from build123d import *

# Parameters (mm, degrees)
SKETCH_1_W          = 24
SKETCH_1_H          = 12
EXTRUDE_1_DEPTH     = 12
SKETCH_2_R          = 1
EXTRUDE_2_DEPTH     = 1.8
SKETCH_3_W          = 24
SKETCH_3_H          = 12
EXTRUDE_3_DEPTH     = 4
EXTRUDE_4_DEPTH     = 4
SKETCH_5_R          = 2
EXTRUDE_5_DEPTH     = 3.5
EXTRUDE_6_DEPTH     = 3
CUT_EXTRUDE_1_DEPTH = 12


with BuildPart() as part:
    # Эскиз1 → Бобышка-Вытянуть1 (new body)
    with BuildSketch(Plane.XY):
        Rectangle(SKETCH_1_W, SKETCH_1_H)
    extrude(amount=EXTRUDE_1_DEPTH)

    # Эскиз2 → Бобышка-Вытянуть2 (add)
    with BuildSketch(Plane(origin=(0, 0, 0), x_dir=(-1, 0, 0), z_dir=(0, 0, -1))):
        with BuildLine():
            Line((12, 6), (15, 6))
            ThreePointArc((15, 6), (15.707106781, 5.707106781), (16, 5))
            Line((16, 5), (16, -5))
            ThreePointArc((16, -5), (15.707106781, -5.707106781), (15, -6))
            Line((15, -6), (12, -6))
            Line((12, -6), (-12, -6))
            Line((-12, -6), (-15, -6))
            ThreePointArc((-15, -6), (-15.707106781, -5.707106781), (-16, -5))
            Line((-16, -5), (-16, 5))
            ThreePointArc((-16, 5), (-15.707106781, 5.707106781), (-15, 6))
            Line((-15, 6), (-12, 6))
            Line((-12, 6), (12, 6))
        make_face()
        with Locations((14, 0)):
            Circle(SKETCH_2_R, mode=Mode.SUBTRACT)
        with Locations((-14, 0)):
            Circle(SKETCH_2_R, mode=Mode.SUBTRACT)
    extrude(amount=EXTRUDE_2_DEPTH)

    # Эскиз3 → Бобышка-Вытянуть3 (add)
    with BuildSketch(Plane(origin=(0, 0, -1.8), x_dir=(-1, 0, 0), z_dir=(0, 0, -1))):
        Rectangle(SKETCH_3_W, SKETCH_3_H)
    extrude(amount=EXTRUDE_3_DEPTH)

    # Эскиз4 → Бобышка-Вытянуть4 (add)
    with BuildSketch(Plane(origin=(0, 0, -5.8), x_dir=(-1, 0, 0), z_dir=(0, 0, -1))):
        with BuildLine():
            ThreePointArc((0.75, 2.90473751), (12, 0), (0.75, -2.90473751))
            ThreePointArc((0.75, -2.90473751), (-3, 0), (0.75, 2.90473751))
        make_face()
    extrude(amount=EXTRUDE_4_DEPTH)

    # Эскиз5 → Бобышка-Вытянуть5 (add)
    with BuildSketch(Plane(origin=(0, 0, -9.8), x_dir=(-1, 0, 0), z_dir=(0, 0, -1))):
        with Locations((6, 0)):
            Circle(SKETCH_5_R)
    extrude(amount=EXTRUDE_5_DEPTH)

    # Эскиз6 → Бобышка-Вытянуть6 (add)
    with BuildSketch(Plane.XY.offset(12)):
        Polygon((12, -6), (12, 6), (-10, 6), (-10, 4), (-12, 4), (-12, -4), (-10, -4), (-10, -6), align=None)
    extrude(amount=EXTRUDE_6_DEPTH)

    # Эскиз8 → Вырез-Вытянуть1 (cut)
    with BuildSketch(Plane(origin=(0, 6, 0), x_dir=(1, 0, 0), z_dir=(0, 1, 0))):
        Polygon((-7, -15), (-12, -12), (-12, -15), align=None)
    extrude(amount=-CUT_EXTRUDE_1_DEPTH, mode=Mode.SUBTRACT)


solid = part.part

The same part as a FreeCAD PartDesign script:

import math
import FreeCAD as App
import Part
import Sketcher
from FreeCAD import Vector

doc = App.newDocument("Part")
params = doc.addObject("Spreadsheet::Sheet", "Params")
for row, (alias, value) in enumerate([
    ("sketch1_width", "24 mm"),
    ("sketch1_height", "12 mm"),
    ("pad1_length", "12 mm"),
    ("sketch2_diameter", "2 mm"),
    ("sketch2_width", "30 mm"),
    ("sketch2_height", "10 mm"),
    ("pad2_length", "1.8 mm"),
    ("sketch3_width", "24 mm"),
    ("sketch3_height", "12 mm"),
    ("pad3_length", "4 mm"),
    ("sketch4_radius", "6 mm"),
    ("sketch4_radius2", "3 mm"),
    ("pad4_length", "4 mm"),
    ("sketch5_diameter", "4 mm"),
    ("pad5_length", "3.5 mm"),
    ("sketch6_width", "22 mm"),
    ("sketch6_width2", "2 mm"),
    ("sketch6_height", "12 mm"),
    ("pad6_length", "3 mm"),
    ("sketch7_width", "5 mm"),
    ("sketch7_height", "3 mm"),
    ("pocket1_length", "12 mm"),
], start=1):
    params.set(f"A{row}", alias)
    params.set(f"B{row}", "=" + value)
    params.setAlias(f"B{row}", alias)

body = doc.addObject("PartDesign::Body", "Body")

# Sketch on XY plane
sketch1 = body.newObject("Sketcher::SketchObject", "Sketch")
sketch1.AttachmentSupport = (doc.getObject("XY_Plane"), [""])
sketch1.MapMode = "FlatFace"
sketch1.addGeometry(Part.LineSegment(Vector(-12, 6, 0), Vector(-12, -6, 0)), False)
sketch1.addGeometry(Part.LineSegment(Vector(-12, -6, 0), Vector(12, -6, 0)), False)
sketch1.addGeometry(Part.LineSegment(Vector(12, -6, 0), Vector(12, 6, 0)), False)
sketch1.addGeometry(Part.LineSegment(Vector(12, 6, 0), Vector(-12, 6, 0)), False)
sketch1.addConstraint(Sketcher.Constraint("Coincident", 0, 2, 1, 1))
sketch1.addConstraint(Sketcher.Constraint("Coincident", 1, 2, 2, 1))
sketch1.addConstraint(Sketcher.Constraint("Coincident", 2, 2, 3, 1))
sketch1.addConstraint(Sketcher.Constraint("Coincident", 3, 2, 0, 1))
sketch1.addConstraint(Sketcher.Constraint("Vertical", 0))
sketch1.addConstraint(Sketcher.Constraint("Horizontal", 1))
sketch1.addConstraint(Sketcher.Constraint("Vertical", 2))
sketch1.addConstraint(Sketcher.Constraint("Horizontal", 3))
sketch1.addConstraint(Sketcher.Constraint("Symmetric", 0, 2, 2, 2, -1, 1))
sketch1.addConstraint(Sketcher.Constraint("DistanceX", 1, 1, 1, 2, 24.0))
sketch1.addConstraint(Sketcher.Constraint("DistanceY", 0, 2, 0, 1, 12.0))
sketch1.setExpression("Constraints[9]", "Params.sketch1_width")
sketch1.setExpression("Constraints[10]", "Params.sketch1_height")
pad1 = body.newObject("PartDesign::Pad", "Pad")
pad1.Profile = sketch1
pad1.setExpression("Length", "Params.pad1_length")

# Sketch on XY plane
sketch2 = body.newObject("Sketcher::SketchObject", "Sketch001")
sketch2.AttachmentSupport = (doc.getObject("XY_Plane"), [""])
sketch2.MapMode = "FlatFace"
sketch2.addGeometry(Part.ArcOfCircle(Part.Circle(Vector(-15, 5, 0), Vector(0, 0, 1), 1), math.radians(90), math.radians(180)), False)
sketch2.addGeometry(Part.LineSegment(Vector(-15, 6, 0), Vector(15, 6, 0)), False)
sketch2.addGeometry(Part.ArcOfCircle(Part.Circle(Vector(15, 5, 0), Vector(0, 0, 1), 1), math.radians(0), math.radians(90)), False)
sketch2.addGeometry(Part.LineSegment(Vector(16, 5, 0), Vector(16, -5, 0)), False)
sketch2.addGeometry(Part.ArcOfCircle(Part.Circle(Vector(15, -5, 0), Vector(0, 0, 1), 1), math.radians(-90), math.radians(0)), False)
sketch2.addGeometry(Part.LineSegment(Vector(15, -6, 0), Vector(-15, -6, 0)), False)
sketch2.addGeometry(Part.ArcOfCircle(Part.Circle(Vector(-15, -5, 0), Vector(0, 0, 1), 1), math.radians(-180), math.radians(-90)), False)
sketch2.addGeometry(Part.LineSegment(Vector(-16, -5, 0), Vector(-16, 5, 0)), False)
sketch2.addGeometry(Part.Circle(Vector(-14, 0, 0), Vector(0, 0, 1), 1), False)
sketch2.addGeometry(Part.Circle(Vector(14, 0, 0), Vector(0, 0, 1), 1), False)
sketch2.addConstraint(Sketcher.Constraint("Tangent", 0, 1, 1, 1))
sketch2.addConstraint(Sketcher.Constraint("Tangent", 1, 2, 2, 2))
sketch2.addConstraint(Sketcher.Constraint("Tangent", 2, 1, 3, 1))
sketch2.addConstraint(Sketcher.Constraint("Tangent", 3, 2, 4, 2))
sketch2.addConstraint(Sketcher.Constraint("Tangent", 4, 1, 5, 1))
sketch2.addConstraint(Sketcher.Constraint("Tangent", 5, 2, 6, 2))
sketch2.addConstraint(Sketcher.Constraint("Tangent", 6, 1, 7, 1))
sketch2.addConstraint(Sketcher.Constraint("Tangent", 7, 2, 0, 2))
sketch2.addConstraint(Sketcher.Constraint("Horizontal", 1))
sketch2.addConstraint(Sketcher.Constraint("Vertical", 3))
sketch2.addConstraint(Sketcher.Constraint("Horizontal", 5))
sketch2.addConstraint(Sketcher.Constraint("Vertical", 7))
sketch2.addConstraint(Sketcher.Constraint("Equal", 0, 2))
sketch2.addConstraint(Sketcher.Constraint("Equal", 2, 4))
sketch2.addConstraint(Sketcher.Constraint("Equal", 4, 6))
sketch2.addConstraint(Sketcher.Constraint("Equal", 6, 8))
sketch2.addConstraint(Sketcher.Constraint("Equal", 8, 9))
sketch2.addConstraint(Sketcher.Constraint("Symmetric", 0, 3, 4, 3, -1, 1))
sketch2.addConstraint(Sketcher.Constraint("Symmetric", 8, 3, 9, 3, -1, 1))
sketch2.addConstraint(Sketcher.Constraint("PointOnObject", 8, 3, -1))
sketch2.addConstraint(Sketcher.Constraint("Diameter", 8, 2.0))
sketch2.addConstraint(Sketcher.Constraint("DistanceX", 1, 1, 1, 2, 30.0))
sketch2.addConstraint(Sketcher.Constraint("DistanceY", 3, 2, 3, 1, 10.0))
sketch2.addConstraint(Sketcher.Constraint("DistanceX", 8, 3, -1, 1, 14.0))
sketch2.setExpression("Constraints[20]", "Params.sketch2_diameter")
sketch2.setExpression("Constraints[21]", "Params.sketch2_width")
sketch2.setExpression("Constraints[22]", "Params.sketch2_height")
pad2 = body.newObject("PartDesign::Pad", "Pad001")
pad2.Profile = sketch2
pad2.setExpression("Length", "Params.pad2_length")
pad2.Reversed = True

# Sketch on XY plane
sketch3 = body.newObject("Sketcher::SketchObject", "Sketch002")
sketch3.AttachmentSupport = (doc.getObject("XY_Plane"), [""])
sketch3.MapMode = "FlatFace"
sketch3.AttachmentOffset = App.Placement(Vector(0, 0, -1.8), App.Rotation())
sketch3.addGeometry(Part.LineSegment(Vector(12, 6, 0), Vector(12, -6, 0)), False)
sketch3.addGeometry(Part.LineSegment(Vector(12, -6, 0), Vector(-12, -6, 0)), False)
sketch3.addGeometry(Part.LineSegment(Vector(-12, -6, 0), Vector(-12, 6, 0)), False)
sketch3.addGeometry(Part.LineSegment(Vector(-12, 6, 0), Vector(12, 6, 0)), False)
sketch3.addConstraint(Sketcher.Constraint("Coincident", 0, 2, 1, 1))
sketch3.addConstraint(Sketcher.Constraint("Coincident", 1, 2, 2, 1))
sketch3.addConstraint(Sketcher.Constraint("Coincident", 2, 2, 3, 1))
sketch3.addConstraint(Sketcher.Constraint("Coincident", 3, 2, 0, 1))
sketch3.addConstraint(Sketcher.Constraint("Vertical", 0))
sketch3.addConstraint(Sketcher.Constraint("Horizontal", 1))
sketch3.addConstraint(Sketcher.Constraint("Vertical", 2))
sketch3.addConstraint(Sketcher.Constraint("Horizontal", 3))
sketch3.addConstraint(Sketcher.Constraint("Symmetric", 0, 2, 2, 2, -1, 1))
sketch3.addConstraint(Sketcher.Constraint("DistanceX", 1, 2, 1, 1, 24.0))
sketch3.addConstraint(Sketcher.Constraint("DistanceY", 0, 2, 0, 1, 12.0))
sketch3.setExpression("Constraints[9]", "Params.sketch3_width")
sketch3.setExpression("Constraints[10]", "Params.sketch3_height")
pad3 = body.newObject("PartDesign::Pad", "Pad002")
pad3.Profile = sketch3
pad3.setExpression("Length", "Params.pad3_length")
pad3.Reversed = True

# Sketch on XY plane
sketch4 = body.newObject("Sketcher::SketchObject", "Sketch003")
sketch4.AttachmentSupport = (doc.getObject("XY_Plane"), [""])
sketch4.MapMode = "FlatFace"
sketch4.AttachmentOffset = App.Placement(Vector(0, 0, -5.8), App.Rotation())
sketch4.addGeometry(Part.ArcOfCircle(Part.Circle(Vector(-6, 0, 0), Vector(0, 0, 1), 6), math.radians(28.955024), math.radians(331.044976)), False)
sketch4.addGeometry(Part.ArcOfCircle(Part.Circle(Vector(0, 0, 0), Vector(0, 0, 1), 3), math.radians(-104.477512), math.radians(104.477512)), False)
sketch4.addConstraint(Sketcher.Constraint("Coincident", 0, 1, 1, 2))
sketch4.addConstraint(Sketcher.Constraint("Coincident", 1, 1, 0, 2))
sketch4.addConstraint(Sketcher.Constraint("Coincident", 1, 3, -1, 1))
sketch4.addConstraint(Sketcher.Constraint("PointOnObject", 0, 3, -1))
sketch4.addConstraint(Sketcher.Constraint("Radius", 0, 6.0))
sketch4.addConstraint(Sketcher.Constraint("Radius", 1, 3.0))
sketch4.addConstraint(Sketcher.Constraint("DistanceX", 0, 3, -1, 1, 6.0))
sketch4.setExpression("Constraints[4]", "Params.sketch4_radius")
sketch4.setExpression("Constraints[5]", "Params.sketch4_radius2")
pad4 = body.newObject("PartDesign::Pad", "Pad003")
pad4.Profile = sketch4
pad4.setExpression("Length", "Params.pad4_length")
pad4.Reversed = True

# Sketch on XY plane
sketch5 = body.newObject("Sketcher::SketchObject", "Sketch004")
sketch5.AttachmentSupport = (doc.getObject("XY_Plane"), [""])
sketch5.MapMode = "FlatFace"
sketch5.AttachmentOffset = App.Placement(Vector(0, 0, -9.8), App.Rotation())
sketch5.addGeometry(Part.Circle(Vector(-6, 0, 0), Vector(0, 0, 1), 2), False)
sketch5.addConstraint(Sketcher.Constraint("PointOnObject", 0, 3, -1))
sketch5.addConstraint(Sketcher.Constraint("Diameter", 0, 4.0))
sketch5.addConstraint(Sketcher.Constraint("DistanceX", 0, 3, -1, 1, 6.0))
sketch5.setExpression("Constraints[1]", "Params.sketch5_diameter")
pad5 = body.newObject("PartDesign::Pad", "Pad004")
pad5.Profile = sketch5
pad5.setExpression("Length", "Params.pad5_length")
pad5.Reversed = True

# Sketch on XY plane
sketch6 = body.newObject("Sketcher::SketchObject", "Sketch005")
sketch6.AttachmentSupport = (doc.getObject("XY_Plane"), [""])
sketch6.MapMode = "FlatFace"
sketch6.AttachmentOffset = App.Placement(Vector(0, 0, 12), App.Rotation())
sketch6.addGeometry(Part.LineSegment(Vector(12, -6, 0), Vector(12, 6, 0)), False)
sketch6.addGeometry(Part.LineSegment(Vector(12, 6, 0), Vector(-10, 6, 0)), False)
sketch6.addGeometry(Part.LineSegment(Vector(-10, 6, 0), Vector(-10, 4, 0)), False)
sketch6.addGeometry(Part.LineSegment(Vector(-10, 4, 0), Vector(-12, 4, 0)), False)
sketch6.addGeometry(Part.LineSegment(Vector(-12, 4, 0), Vector(-12, -4, 0)), False)
sketch6.addGeometry(Part.LineSegment(Vector(-12, -4, 0), Vector(-10, -4, 0)), False)
sketch6.addGeometry(Part.LineSegment(Vector(-10, -4, 0), Vector(-10, -6, 0)), False)
sketch6.addGeometry(Part.LineSegment(Vector(-10, -6, 0), Vector(12, -6, 0)), False)
sketch6.addConstraint(Sketcher.Constraint("Coincident", 0, 2, 1, 1))
sketch6.addConstraint(Sketcher.Constraint("Coincident", 1, 2, 2, 1))
sketch6.addConstraint(Sketcher.Constraint("Coincident", 2, 2, 3, 1))
sketch6.addConstraint(Sketcher.Constraint("Coincident", 3, 2, 4, 1))
sketch6.addConstraint(Sketcher.Constraint("Coincident", 4, 2, 5, 1))
sketch6.addConstraint(Sketcher.Constraint("Coincident", 5, 2, 6, 1))
sketch6.addConstraint(Sketcher.Constraint("Coincident", 6, 2, 7, 1))
sketch6.addConstraint(Sketcher.Constraint("Coincident", 7, 2, 0, 1))
sketch6.addConstraint(Sketcher.Constraint("Vertical", 0))
sketch6.addConstraint(Sketcher.Constraint("Horizontal", 1))
sketch6.addConstraint(Sketcher.Constraint("Vertical", 2))
sketch6.addConstraint(Sketcher.Constraint("Horizontal", 3))
sketch6.addConstraint(Sketcher.Constraint("Vertical", 4))
sketch6.addConstraint(Sketcher.Constraint("Horizontal", 5))
sketch6.addConstraint(Sketcher.Constraint("Vertical", 6))
sketch6.addConstraint(Sketcher.Constraint("Horizontal", 7))
sketch6.addConstraint(Sketcher.Constraint("Symmetric", 2, 2, 5, 2, -1))
sketch6.addConstraint(Sketcher.Constraint("Equal", 5, 2))
sketch6.addConstraint(Sketcher.Constraint("Equal", 2, 6))
sketch6.addConstraint(Sketcher.Constraint("DistanceX", 1, 2, 1, 1, 22.0))
sketch6.addConstraint(Sketcher.Constraint("DistanceX", 3, 2, 3, 1, 2.0))
sketch6.addConstraint(Sketcher.Constraint("DistanceY", 0, 1, 0, 2, 12.0))
sketch6.addConstraint(Sketcher.Constraint("DistanceX", -1, 1, 0, 2, 12.0))
sketch6.setExpression("Constraints[19]", "Params.sketch6_width")
sketch6.setExpression("Constraints[20]", "Params.sketch6_width2")
sketch6.setExpression("Constraints[21]", "Params.sketch6_height")
pad6 = body.newObject("PartDesign::Pad", "Pad005")
pad6.Profile = sketch6
pad6.setExpression("Length", "Params.pad6_length")

# Sketch on XZ plane
sketch7 = body.newObject("Sketcher::SketchObject", "Sketch006")
sketch7.AttachmentSupport = (doc.getObject("XZ_Plane"), [""])
sketch7.MapMode = "FlatFace"
sketch7.AttachmentOffset = App.Placement(Vector(0, 0, -6), App.Rotation())
sketch7.addGeometry(Part.LineSegment(Vector(-7, 15, 0), Vector(-12, 12, 0)), False)
sketch7.addGeometry(Part.LineSegment(Vector(-12, 12, 0), Vector(-12, 15, 0)), False)
sketch7.addGeometry(Part.LineSegment(Vector(-12, 15, 0), Vector(-7, 15, 0)), False)
sketch7.addConstraint(Sketcher.Constraint("Coincident", 0, 2, 1, 1))
sketch7.addConstraint(Sketcher.Constraint("Coincident", 1, 2, 2, 1))
sketch7.addConstraint(Sketcher.Constraint("Coincident", 2, 2, 0, 1))
sketch7.addConstraint(Sketcher.Constraint("Vertical", 1))
sketch7.addConstraint(Sketcher.Constraint("Horizontal", 2))
sketch7.addConstraint(Sketcher.Constraint("DistanceX", 2, 1, 2, 2, 5.0))
sketch7.addConstraint(Sketcher.Constraint("DistanceY", 1, 1, 1, 2, 3.0))
sketch7.addConstraint(Sketcher.Constraint("DistanceX", 0, 2, -1, 1, 12.0))
sketch7.addConstraint(Sketcher.Constraint("DistanceY", -1, 1, 0, 2, 12.0))
sketch7.setExpression("Constraints[5]", "Params.sketch7_width")
sketch7.setExpression("Constraints[6]", "Params.sketch7_height")
pocket1 = body.newObject("PartDesign::Pocket", "Pocket")
pocket1.Profile = sketch7
pocket1.setExpression("Length", "Params.pocket1_length")
pocket1.Reversed = True

doc.recompute()
